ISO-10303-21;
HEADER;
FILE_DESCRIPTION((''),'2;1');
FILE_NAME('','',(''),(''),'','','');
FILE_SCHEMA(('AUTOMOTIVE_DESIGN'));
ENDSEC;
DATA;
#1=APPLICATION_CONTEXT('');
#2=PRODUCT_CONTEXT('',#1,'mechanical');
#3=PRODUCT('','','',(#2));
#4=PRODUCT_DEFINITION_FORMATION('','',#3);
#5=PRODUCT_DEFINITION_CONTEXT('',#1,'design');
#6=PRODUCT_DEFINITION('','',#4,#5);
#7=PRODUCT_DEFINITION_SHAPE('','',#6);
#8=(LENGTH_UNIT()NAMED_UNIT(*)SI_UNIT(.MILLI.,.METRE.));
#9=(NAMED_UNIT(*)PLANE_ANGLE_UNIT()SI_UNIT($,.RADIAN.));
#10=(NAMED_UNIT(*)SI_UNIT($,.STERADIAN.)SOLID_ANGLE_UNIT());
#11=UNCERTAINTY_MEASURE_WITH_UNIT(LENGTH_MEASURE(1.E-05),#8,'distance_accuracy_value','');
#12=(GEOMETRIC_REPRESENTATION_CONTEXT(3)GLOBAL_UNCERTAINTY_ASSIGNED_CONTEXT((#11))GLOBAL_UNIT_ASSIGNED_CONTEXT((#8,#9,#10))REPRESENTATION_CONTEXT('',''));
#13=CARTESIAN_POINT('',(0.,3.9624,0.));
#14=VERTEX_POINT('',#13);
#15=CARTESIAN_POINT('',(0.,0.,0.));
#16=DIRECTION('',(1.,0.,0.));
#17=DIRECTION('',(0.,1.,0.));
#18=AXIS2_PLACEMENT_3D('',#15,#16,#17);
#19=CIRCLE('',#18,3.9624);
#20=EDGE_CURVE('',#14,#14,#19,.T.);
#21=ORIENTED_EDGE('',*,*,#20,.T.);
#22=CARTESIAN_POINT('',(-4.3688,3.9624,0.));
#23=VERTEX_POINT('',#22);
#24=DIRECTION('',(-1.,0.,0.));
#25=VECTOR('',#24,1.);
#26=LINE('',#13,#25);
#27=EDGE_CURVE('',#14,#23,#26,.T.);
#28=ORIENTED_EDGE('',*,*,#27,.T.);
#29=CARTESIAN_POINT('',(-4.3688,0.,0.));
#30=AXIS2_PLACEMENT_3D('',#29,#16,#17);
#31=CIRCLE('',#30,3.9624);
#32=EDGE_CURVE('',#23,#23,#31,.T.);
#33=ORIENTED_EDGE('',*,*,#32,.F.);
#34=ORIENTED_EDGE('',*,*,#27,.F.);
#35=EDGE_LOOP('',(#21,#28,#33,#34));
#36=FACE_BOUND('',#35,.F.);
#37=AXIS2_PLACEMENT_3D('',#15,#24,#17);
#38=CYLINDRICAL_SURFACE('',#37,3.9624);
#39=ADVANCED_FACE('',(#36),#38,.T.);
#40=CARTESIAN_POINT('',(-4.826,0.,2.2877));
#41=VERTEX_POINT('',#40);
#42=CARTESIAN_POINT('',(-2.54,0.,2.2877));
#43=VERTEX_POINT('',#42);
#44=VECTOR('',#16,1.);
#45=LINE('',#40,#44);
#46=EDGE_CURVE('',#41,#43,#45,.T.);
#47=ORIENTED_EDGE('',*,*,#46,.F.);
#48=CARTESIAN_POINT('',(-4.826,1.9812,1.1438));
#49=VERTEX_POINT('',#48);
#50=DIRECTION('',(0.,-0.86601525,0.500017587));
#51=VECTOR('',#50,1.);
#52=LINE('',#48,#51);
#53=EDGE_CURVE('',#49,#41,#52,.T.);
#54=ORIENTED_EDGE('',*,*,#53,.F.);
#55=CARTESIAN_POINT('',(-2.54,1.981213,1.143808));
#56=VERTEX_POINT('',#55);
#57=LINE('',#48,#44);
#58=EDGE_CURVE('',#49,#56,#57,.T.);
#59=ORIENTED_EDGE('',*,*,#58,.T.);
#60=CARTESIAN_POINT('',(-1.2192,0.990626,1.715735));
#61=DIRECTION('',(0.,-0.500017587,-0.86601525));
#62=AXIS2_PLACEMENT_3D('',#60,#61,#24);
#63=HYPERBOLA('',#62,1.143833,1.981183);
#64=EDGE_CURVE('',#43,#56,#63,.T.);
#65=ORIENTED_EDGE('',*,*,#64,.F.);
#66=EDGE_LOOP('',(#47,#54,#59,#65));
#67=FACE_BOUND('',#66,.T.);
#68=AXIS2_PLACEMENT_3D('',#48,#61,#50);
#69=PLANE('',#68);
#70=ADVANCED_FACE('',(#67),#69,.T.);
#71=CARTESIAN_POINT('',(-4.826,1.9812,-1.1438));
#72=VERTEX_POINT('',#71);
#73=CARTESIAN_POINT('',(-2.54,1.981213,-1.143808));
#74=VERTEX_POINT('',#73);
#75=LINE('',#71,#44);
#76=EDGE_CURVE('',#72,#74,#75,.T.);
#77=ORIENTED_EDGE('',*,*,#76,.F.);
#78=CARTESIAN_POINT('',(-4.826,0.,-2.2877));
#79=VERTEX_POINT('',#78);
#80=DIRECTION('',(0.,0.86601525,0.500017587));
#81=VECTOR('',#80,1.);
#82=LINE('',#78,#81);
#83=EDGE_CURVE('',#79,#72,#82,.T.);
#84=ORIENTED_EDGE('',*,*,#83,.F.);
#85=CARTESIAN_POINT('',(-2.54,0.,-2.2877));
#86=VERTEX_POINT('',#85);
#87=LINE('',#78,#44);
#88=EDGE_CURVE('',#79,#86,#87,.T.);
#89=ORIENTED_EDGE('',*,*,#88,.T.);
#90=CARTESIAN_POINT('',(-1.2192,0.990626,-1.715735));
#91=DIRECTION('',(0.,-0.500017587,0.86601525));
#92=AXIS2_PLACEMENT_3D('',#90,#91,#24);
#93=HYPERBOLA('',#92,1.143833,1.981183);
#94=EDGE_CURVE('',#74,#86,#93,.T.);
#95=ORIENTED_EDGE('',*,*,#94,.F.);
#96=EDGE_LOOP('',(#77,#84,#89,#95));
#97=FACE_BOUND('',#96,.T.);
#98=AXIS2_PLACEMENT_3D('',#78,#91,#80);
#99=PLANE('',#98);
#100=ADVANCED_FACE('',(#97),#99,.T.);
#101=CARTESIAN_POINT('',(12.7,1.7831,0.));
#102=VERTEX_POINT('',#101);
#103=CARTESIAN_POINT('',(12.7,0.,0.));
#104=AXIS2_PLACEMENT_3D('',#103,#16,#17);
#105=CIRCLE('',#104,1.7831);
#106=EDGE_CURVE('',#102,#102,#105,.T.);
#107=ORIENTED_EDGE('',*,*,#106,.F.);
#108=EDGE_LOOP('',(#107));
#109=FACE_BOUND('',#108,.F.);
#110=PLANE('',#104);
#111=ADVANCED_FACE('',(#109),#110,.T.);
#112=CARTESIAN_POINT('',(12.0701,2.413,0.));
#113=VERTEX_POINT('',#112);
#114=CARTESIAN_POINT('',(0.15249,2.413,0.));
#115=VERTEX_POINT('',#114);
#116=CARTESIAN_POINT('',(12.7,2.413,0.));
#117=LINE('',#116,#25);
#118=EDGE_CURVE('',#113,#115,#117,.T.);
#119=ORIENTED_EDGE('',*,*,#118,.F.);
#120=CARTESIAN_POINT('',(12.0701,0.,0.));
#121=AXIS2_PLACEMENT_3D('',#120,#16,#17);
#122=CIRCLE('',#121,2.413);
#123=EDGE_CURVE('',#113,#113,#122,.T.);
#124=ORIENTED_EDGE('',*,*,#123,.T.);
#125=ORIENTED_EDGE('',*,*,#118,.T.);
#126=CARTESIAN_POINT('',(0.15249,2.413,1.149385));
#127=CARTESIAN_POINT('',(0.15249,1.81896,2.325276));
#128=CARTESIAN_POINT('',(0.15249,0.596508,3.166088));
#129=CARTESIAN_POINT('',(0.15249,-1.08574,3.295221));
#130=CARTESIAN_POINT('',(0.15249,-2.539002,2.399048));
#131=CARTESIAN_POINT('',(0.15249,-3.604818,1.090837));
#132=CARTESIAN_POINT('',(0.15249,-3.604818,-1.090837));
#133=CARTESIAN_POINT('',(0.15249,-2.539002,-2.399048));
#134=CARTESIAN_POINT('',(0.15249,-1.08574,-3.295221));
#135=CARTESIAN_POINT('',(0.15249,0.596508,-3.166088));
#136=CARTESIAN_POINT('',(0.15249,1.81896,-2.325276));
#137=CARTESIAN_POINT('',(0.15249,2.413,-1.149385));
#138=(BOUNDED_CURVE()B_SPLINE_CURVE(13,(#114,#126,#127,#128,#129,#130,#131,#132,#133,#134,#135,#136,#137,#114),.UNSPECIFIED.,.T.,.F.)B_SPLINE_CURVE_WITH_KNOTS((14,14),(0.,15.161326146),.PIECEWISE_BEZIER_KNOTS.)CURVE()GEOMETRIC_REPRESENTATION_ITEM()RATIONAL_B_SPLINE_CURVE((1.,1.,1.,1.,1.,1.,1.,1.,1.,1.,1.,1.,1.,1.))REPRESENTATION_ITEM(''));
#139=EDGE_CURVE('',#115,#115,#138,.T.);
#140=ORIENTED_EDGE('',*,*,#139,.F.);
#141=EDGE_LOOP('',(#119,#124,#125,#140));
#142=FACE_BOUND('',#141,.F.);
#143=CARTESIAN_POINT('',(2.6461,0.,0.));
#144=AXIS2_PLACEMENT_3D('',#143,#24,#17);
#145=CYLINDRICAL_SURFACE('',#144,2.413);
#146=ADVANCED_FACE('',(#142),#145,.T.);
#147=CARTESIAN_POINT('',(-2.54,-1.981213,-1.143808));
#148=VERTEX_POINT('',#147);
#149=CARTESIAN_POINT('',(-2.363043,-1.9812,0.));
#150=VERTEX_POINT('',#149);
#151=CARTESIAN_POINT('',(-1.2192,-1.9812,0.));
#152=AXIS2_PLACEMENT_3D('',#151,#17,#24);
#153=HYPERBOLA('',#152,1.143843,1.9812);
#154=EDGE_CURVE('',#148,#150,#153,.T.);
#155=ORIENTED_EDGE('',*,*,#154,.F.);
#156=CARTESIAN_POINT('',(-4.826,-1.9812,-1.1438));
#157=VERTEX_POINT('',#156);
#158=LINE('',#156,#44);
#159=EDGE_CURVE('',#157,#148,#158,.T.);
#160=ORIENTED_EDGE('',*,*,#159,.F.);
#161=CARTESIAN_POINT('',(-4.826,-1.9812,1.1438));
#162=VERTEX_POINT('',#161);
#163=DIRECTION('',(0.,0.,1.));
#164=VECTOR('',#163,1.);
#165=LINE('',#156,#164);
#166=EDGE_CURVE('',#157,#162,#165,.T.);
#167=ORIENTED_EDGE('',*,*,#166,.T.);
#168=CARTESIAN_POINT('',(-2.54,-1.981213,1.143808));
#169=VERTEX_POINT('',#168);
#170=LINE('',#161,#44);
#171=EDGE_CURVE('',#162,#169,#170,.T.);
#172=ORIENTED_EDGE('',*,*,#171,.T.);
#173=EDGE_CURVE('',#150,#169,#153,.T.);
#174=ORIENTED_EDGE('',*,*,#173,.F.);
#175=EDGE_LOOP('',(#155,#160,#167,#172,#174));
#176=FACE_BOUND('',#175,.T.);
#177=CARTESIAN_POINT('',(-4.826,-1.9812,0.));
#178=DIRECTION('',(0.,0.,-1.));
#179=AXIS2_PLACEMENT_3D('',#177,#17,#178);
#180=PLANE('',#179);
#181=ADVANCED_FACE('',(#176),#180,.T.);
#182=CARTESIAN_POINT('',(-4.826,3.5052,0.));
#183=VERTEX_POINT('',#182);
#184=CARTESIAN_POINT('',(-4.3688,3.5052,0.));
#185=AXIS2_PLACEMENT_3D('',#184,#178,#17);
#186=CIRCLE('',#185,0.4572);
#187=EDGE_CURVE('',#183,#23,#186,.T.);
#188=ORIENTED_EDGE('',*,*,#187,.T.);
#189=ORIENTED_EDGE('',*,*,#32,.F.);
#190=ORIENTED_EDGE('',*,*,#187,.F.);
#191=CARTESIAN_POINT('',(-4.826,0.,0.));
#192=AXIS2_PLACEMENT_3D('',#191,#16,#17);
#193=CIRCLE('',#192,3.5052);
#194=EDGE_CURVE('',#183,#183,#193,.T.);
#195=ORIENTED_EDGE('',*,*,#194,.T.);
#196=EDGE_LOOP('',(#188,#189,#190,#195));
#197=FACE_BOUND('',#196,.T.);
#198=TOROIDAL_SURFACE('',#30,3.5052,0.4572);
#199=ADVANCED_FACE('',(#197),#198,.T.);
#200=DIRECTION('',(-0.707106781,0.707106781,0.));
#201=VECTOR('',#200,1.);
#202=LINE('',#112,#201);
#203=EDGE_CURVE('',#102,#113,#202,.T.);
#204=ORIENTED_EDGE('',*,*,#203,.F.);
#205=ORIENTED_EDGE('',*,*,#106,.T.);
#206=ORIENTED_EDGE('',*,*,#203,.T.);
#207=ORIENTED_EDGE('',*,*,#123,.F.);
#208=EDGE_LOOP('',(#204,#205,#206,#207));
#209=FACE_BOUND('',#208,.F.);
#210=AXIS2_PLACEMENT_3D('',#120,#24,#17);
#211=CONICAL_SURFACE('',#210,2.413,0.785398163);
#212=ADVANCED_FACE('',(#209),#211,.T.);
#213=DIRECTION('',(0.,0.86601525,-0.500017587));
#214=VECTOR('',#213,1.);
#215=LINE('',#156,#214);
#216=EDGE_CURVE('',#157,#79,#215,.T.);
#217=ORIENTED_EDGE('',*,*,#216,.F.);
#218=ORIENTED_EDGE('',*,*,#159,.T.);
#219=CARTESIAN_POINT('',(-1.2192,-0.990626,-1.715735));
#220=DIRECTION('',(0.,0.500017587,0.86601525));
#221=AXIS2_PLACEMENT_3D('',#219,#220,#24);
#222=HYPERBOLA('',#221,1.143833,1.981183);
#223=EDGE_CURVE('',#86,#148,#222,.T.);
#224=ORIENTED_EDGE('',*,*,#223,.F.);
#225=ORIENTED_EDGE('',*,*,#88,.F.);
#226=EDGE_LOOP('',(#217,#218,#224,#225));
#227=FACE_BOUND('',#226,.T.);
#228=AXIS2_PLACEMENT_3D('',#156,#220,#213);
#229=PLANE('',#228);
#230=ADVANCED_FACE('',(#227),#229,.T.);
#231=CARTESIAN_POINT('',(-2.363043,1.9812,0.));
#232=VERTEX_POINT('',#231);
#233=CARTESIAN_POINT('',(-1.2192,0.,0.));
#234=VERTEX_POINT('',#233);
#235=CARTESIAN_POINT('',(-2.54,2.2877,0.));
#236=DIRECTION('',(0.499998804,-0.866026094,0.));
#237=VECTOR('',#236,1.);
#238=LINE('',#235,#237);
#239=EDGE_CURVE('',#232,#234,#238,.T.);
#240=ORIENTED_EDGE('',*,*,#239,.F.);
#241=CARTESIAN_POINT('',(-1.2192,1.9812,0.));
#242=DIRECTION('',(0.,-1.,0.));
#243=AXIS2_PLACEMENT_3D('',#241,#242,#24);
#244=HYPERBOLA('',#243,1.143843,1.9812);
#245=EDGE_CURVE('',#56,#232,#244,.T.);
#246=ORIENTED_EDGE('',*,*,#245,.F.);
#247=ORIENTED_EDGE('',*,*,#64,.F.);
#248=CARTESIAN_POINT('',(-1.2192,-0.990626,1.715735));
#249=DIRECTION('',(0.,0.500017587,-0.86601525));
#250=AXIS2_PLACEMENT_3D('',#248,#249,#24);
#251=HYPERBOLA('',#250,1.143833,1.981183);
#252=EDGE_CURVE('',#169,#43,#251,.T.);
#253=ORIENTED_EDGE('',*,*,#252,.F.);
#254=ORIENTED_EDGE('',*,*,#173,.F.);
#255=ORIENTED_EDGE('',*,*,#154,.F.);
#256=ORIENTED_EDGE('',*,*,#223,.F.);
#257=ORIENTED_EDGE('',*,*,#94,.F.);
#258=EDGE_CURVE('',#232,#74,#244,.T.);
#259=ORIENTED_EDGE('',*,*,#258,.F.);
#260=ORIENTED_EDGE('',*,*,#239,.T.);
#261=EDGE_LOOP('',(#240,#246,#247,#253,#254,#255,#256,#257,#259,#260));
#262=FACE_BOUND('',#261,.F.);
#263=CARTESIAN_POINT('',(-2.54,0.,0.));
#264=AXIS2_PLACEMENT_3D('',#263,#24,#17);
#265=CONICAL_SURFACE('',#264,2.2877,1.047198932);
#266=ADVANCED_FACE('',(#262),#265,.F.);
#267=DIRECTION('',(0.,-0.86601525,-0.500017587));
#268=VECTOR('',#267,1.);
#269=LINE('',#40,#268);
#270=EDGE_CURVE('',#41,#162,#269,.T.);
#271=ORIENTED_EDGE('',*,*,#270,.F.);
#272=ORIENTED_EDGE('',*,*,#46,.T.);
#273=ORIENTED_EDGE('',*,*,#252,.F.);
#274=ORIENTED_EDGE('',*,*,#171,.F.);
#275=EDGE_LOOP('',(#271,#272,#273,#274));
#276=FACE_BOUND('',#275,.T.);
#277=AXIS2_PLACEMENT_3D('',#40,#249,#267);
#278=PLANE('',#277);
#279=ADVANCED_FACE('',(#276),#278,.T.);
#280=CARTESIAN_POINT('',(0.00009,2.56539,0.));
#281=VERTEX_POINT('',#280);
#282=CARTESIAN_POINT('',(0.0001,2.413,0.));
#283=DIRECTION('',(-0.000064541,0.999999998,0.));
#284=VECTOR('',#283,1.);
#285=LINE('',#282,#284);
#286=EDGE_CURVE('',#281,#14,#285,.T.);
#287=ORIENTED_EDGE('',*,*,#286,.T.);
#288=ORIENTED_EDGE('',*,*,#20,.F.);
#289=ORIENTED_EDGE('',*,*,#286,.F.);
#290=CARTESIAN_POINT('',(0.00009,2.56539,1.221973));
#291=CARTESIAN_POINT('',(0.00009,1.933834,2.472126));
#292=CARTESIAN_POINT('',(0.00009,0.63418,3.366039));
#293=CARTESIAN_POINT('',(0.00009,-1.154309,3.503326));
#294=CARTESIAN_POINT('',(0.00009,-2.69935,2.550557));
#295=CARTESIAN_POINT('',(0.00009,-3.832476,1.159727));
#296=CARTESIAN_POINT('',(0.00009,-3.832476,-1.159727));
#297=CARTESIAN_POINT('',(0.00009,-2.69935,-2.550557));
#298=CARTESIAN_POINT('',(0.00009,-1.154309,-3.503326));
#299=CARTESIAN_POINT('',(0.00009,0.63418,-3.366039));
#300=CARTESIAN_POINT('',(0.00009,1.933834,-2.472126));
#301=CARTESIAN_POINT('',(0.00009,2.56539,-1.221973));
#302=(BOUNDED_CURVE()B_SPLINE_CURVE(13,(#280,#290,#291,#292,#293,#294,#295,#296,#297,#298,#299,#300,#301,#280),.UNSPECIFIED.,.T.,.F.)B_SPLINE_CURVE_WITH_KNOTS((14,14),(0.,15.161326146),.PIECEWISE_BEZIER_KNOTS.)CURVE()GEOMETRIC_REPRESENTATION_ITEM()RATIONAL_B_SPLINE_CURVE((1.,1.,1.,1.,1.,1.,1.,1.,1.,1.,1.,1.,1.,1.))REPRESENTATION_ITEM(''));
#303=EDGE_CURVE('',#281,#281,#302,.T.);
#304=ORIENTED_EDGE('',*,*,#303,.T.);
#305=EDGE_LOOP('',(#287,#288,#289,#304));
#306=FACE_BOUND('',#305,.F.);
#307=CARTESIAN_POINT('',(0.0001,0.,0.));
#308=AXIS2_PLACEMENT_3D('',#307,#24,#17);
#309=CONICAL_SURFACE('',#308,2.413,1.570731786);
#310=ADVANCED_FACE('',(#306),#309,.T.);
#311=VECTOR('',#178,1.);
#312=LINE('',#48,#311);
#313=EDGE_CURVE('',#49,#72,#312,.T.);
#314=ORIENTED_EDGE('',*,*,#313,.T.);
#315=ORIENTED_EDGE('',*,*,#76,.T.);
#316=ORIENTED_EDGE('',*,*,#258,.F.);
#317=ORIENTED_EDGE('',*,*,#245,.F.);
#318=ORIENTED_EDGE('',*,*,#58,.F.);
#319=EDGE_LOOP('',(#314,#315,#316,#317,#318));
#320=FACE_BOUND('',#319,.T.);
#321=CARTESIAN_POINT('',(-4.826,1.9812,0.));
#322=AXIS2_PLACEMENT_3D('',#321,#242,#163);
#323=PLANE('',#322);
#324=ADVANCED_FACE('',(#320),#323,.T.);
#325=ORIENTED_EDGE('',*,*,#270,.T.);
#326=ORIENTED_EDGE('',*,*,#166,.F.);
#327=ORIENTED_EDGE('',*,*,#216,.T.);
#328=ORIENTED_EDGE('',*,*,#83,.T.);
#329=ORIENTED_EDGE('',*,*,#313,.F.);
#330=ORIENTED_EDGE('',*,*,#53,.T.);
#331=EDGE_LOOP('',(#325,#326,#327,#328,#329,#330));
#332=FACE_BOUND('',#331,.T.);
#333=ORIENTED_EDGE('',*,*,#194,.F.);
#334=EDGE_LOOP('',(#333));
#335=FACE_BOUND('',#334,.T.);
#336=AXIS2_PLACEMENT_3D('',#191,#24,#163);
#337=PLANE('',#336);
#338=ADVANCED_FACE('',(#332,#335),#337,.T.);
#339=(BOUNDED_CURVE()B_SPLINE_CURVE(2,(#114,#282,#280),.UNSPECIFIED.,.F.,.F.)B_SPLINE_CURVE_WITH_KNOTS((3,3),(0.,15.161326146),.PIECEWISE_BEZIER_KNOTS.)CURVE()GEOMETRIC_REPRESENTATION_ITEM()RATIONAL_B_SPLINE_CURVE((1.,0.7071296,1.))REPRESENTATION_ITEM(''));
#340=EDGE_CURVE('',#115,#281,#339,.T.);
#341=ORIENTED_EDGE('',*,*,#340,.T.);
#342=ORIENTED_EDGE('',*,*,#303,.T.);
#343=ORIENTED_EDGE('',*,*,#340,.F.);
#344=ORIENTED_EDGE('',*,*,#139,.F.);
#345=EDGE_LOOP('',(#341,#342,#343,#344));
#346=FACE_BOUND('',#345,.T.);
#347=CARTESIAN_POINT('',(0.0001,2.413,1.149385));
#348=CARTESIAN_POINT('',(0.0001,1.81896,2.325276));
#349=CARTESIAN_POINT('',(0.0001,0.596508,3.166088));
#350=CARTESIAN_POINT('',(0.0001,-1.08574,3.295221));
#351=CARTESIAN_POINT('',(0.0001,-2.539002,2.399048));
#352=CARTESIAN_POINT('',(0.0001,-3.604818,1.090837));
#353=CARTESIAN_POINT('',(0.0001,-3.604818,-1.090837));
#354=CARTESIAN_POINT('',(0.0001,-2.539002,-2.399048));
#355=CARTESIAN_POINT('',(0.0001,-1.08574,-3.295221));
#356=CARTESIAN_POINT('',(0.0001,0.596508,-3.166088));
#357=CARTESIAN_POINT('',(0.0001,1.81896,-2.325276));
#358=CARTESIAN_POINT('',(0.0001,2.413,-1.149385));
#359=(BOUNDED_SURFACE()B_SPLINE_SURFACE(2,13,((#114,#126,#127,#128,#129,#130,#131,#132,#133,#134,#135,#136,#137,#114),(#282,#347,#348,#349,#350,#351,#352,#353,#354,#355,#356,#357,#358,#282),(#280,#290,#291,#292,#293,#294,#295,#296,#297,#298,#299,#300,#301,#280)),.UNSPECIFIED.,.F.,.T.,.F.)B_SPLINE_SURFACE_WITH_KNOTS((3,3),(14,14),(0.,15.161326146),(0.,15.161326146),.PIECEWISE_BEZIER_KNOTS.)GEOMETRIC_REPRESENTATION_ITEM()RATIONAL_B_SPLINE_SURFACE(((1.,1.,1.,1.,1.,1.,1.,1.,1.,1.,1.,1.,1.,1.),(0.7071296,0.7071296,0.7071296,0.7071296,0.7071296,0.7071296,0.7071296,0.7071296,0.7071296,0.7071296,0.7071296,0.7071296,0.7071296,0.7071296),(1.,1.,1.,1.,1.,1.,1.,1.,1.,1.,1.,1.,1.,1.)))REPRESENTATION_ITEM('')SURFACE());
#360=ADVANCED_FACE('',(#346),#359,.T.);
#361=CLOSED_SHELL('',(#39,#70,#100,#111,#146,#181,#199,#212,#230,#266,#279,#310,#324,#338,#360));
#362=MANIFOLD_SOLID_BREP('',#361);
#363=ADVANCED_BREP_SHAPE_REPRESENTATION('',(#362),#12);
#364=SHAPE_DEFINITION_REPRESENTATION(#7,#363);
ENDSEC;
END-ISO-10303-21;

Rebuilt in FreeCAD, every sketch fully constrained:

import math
import FreeCAD as App
import Part
import Sketcher
from FreeCAD import Vector
Q = App.Units.Quantity


def edges_at(feature, points):
    """Names of the edges that pass closest to the given points."""
    edges = feature.Shape.Edges
    near = lambda p: min(range(len(edges)), key=lambda i: edges[i].distToShape(Part.Vertex(*p))[0])
    return sorted({f"Edge{near(p) + 1}" for p in points})


def add_polygon(sketch, points):
    """Adds a closed chain of lines whose ends are joined by coincident constraints."""
    first, n = sketch.GeometryCount, len(points)
    for a, b in zip(points, points[1:] + points[:1]):
        sketch.addGeometry(Part.LineSegment(App.Vector(*a, 0), App.Vector(*b, 0)), False)
    for i in range(n):
        sketch.addConstraint(Sketcher.Constraint("Coincident", first + i, 2, first + (i + 1) % n, 1))

doc = App.newDocument("Part")
body = doc.addObject("PartDesign::Body", "Body")

sketch1 = body.newObject("Sketcher::SketchObject", "Sketch")
sketch1.AttachmentSupport = (doc.getObject("XY_Plane"), [""])
sketch1.MapMode = "FlatFace"
add_polygon(sketch1, [(-2.54, 2.2877), (-1.2192, 0), (12.7, 0), (12.7, 2.413), (0.0001, 2.413), (0, 3.9624), (-4.826, 3.9624), (-4.826, 2.2877)])
sketch1.addConstraint([
    Sketcher.Constraint("Horizontal", 1),
    Sketcher.Constraint("Vertical", 2),
    Sketcher.Constraint("Horizontal", 3),
    Sketcher.Constraint("Vertical", 4),
    Sketcher.Constraint("Horizontal", 5),
    Sketcher.Constraint("Vertical", 6),
    Sketcher.Constraint("Horizontal", 7),
    Sketcher.Constraint("PointOnObject", 0, 2, -1),
    Sketcher.Constraint("PointOnObject", 3, 2, -2),
    Sketcher.Constraint("DistanceX", 3, 2, 3, 1, Q("0.5 in")),
    Sketcher.Constraint("Angle", 0, Q("-60 deg")),
    Sketcher.Constraint("DistanceX", 5, 2, 5, 1, Q("0.19 in")),
    Sketcher.Constraint("DistanceX", 7, 1, 7, 2, Q("0.09 in")),
    Sketcher.Constraint("DistanceX", 1, 1, 1, 2, Q("0.548 in")),
    Sketcher.Constraint("DistanceY", 2, 1, 2, 2, Q("0.095 in")),
    Sketcher.Constraint("DistanceY", 4, 1, 4, 2, Q("0.061 in")),
])
revolution = body.newObject("PartDesign::Revolution", "Revolution")
revolution.Profile = sketch1
revolution.ReferenceAxis = (sketch1, ["H_Axis"])
revolution.Angle = 360

sketch2 = body.newObject("Sketcher::SketchObject", "Sketch001")
sketch2.AttachmentSupport = (doc.getObject("YZ_Plane"), [""])
sketch2.MapMode = "FlatFace"
sketch2.AttachmentOffset = App.Placement(Vector(0, 0, -0.19 * 25.4), App.Rotation())
sketch2.addGeometry([
    Part.LineSegment(Vector(1.9812, 1.1438, 0), Vector(0, 2.2877, 0)),
    Part.ArcOfCircle(Part.Circle(Vector(0, 0, 0), Vector(0, 0, 1), 2.2877), math.radians(29.998995), math.radians(90)),
    Part.ArcOfCircle(Part.Circle(Vector(0, 0, 0), Vector(0, 0, 1), 2.2877), math.radians(90), math.radians(150.001005)),
    Part.LineSegment(Vector(0, 2.2877, 0), Vector(-1.9812, 1.1438, 0)),
    Part.ArcOfCircle(Part.Circle(Vector(0, 0, 0), Vector(0, 0, 1), 2.2877), math.radians(-29.998995), math.radians(29.998995)),
    Part.LineSegment(Vector(1.9812, 1.1438, 0), Vector(1.9812, -1.1438, 0)),
    Part.LineSegment(Vector(-1.9812, 1.1438, 0), Vector(-1.9812, -1.1438, 0)),
    Part.ArcOfCircle(Part.Circle(Vector(0, 0, 0), Vector(0, 0, 1), 2.2877), math.radians(150.001005), math.radians(209.998995)),
    Part.LineSegment(Vector(-1.9812, -1.1438, 0), Vector(0, -2.2877, 0)),
    Part.ArcOfCircle(Part.Circle(Vector(0, 0, 0), Vector(0, 0, 1), 2.2877), math.radians(-150.001005), math.radians(-90)),
    Part.ArcOfCircle(Part.Circle(Vector(0, 0, 0), Vector(0, 0, 1), 2.2877), math.radians(-90), math.radians(-29.998995)),
    Part.LineSegment(Vector(0, -2.2877, 0), Vector(1.9812, -1.1438, 0)),
], False)
sketch2.addConstraint([
    Sketcher.Constraint("Coincident", 0, 1, 1, 1),
    Sketcher.Constraint("Coincident", 1, 2, 0, 2),
    Sketcher.Constraint("Coincident", 2, 1, 3, 1),
    Sketcher.Constraint("Coincident", 3, 2, 2, 2),
    Sketcher.Constraint("Coincident", 4, 1, 5, 2),
    Sketcher.Constraint("Coincident", 5, 1, 4, 2),
    Sketcher.Constraint("Coincident", 6, 1, 7, 1),
    Sketcher.Constraint("Coincident", 7, 2, 6, 2),
    Sketcher.Constraint("Coincident", 8, 1, 9, 1),
    Sketcher.Constraint("Coincident", 9, 2, 8, 2),
    Sketcher.Constraint("Coincident", 10, 1, 11, 1),
    Sketcher.Constraint("Coincident", 11, 2, 10, 2),
    Sketcher.Constraint("Vertical", 5),
    Sketcher.Constraint("Vertical", 6),
    Sketcher.Constraint("Coincident", 1, 3, -1, 1),
    Sketcher.Constraint("Coincident", 2, 3, -1, 1),
    Sketcher.Constraint("Coincident", 4, 3, -1, 1),
    Sketcher.Constraint("Coincident", 7, 3, -1, 1),
    Sketcher.Constraint("Coincident", 9, 3, -1, 1),
    Sketcher.Constraint("Coincident", 10, 3, -1, 1),
    Sketcher.Constraint("Coincident", 2, 1, 1, 2),
    Sketcher.Constraint("Coincident", 5, 1, 0, 1),
    Sketcher.Constraint("Coincident", 6, 1, 3, 2),
    Sketcher.Constraint("Coincident", 8, 1, 7, 2),
    Sketcher.Constraint("Coincident", 10, 1, 9, 2),
    Sketcher.Constraint("PointOnObject", 1, 2, -2),
    Sketcher.Constraint("PointOnObject", 9, 2, -2),
    Sketcher.Constraint("Parallel", 0, 8),
    Sketcher.Constraint("Parallel", 3, 11),
    Sketcher.Constraint("Angle", 0, Q("149.9988 deg")),
    Sketcher.Constraint("Radius", 1, Q("2.2877 mm")),
])
pad1 = body.newObject("PartDesign::Pad", "Pad")
pad1.Profile = sketch2
pad1.Length = 2.463
doc.recompute()

fillet = body.newObject("PartDesign::Fillet", "Fillet")
fillet.Base = (pad1, edges_at(pad1, [(-4.826, -3.962, 0)]))
fillet.Radius = Q("0.018 in")
doc.recompute()

chamfer = body.newObject("PartDesign::Chamfer", "Chamfer")
chamfer.Base = (fillet, edges_at(fillet, [(12.7, -2.413, 0)]))
chamfer.ChamferType = "Two distances"
chamfer.Size = Q("0.0247992 in")
chamfer.Size2 = Q("0.0247992 in")
doc.recompute()

fillet2 = body.newObject("PartDesign::Fillet", "Fillet001")
fillet2.Base = (chamfer, edges_at(chamfer, [(0, -2.413, 0)]))
fillet2.Radius = Q("0.006 in")

doc.recompute()
